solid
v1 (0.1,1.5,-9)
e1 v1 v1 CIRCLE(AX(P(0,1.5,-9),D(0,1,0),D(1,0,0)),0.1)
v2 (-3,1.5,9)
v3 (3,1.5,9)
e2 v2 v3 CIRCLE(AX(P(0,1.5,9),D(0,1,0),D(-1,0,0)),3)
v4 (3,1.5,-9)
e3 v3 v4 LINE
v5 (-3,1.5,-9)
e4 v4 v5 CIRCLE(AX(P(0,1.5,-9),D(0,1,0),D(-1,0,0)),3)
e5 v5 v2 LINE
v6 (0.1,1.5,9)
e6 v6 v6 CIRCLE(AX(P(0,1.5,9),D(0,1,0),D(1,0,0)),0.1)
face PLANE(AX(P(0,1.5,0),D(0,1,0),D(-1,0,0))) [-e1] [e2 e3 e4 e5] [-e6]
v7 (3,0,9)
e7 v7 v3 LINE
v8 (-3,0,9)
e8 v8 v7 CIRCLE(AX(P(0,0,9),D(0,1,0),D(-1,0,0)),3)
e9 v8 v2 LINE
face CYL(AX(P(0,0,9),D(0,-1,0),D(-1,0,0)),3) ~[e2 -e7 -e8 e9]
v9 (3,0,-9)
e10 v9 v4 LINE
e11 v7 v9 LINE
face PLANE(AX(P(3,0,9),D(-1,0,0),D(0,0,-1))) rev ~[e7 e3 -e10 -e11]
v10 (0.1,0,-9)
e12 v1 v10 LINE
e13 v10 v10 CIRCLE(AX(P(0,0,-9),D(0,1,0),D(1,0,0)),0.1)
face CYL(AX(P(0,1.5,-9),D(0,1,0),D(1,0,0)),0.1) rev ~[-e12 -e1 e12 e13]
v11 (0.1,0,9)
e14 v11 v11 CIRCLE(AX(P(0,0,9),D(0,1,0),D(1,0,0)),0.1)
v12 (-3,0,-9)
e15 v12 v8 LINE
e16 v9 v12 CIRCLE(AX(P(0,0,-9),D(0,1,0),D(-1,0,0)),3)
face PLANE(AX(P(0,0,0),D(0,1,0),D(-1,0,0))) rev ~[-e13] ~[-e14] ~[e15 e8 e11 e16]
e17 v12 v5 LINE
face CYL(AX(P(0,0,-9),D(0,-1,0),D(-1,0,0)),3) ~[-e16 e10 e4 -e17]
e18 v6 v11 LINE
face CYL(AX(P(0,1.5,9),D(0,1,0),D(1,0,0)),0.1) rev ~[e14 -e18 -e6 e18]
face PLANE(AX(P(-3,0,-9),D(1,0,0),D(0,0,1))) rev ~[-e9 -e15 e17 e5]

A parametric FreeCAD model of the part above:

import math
import FreeCAD as App
import Part
import Sketcher
from FreeCAD import Vector
Q = App.Units.Quantity

doc = App.newDocument("Part")
body = doc.addObject("PartDesign::Body", "Body")

sketch1 = body.newObject("Sketcher::SketchObject", "Sketch")
sketch1.AttachmentSupport = (doc.getObject("XZ_Plane"), [""])
sketch1.MapMode = "FlatFace"
sketch1.addGeometry(Part.LineSegment(Vector(3, 9, 0), Vector(3, -9, 0)), False)
sketch1.addGeometry(Part.ArcOfCircle(Part.Circle(Vector(0, -9, 0), Vector(0, 0, 1), 3), math.radians(180), math.radians(360)), False)
sketch1.addGeometry(Part.LineSegment(Vector(-3, -9, 0), Vector(-3, 9, 0)), False)
sketch1.addGeometry(Part.ArcOfCircle(Part.Circle(Vector(0, 9, 0), Vector(0, 0, 1), 3), math.radians(0), math.radians(180)), False)
sketch1.addConstraint(Sketcher.Constraint("Tangent", 0, 2, 1, 2))
sketch1.addConstraint(Sketcher.Constraint("Tangent", 1, 1, 2, 1))
sketch1.addConstraint(Sketcher.Constraint("Tangent", 2, 2, 3, 2))
sketch1.addConstraint(Sketcher.Constraint("Tangent", 3, 1, 0, 1))
sketch1.addConstraint(Sketcher.Constraint("Vertical", 0))
sketch1.addConstraint(Sketcher.Constraint("Vertical", 2))
sketch1.addConstraint(Sketcher.Constraint("Symmetric", 1, 3, 3, 3, -1, 1))
sketch1.addConstraint(Sketcher.Constraint("Radius", 1, Q("3 mm")))
sketch1.addConstraint(Sketcher.Constraint("DistanceY", 0, 2, 0, 1, Q("18 mm")))
pad1 = body.newObject("PartDesign::Pad", "Pad")
pad1.Profile = sketch1
pad1.Length = 1.5
pad1.Reversed = True

sketch2 = body.newObject("Sketcher::SketchObject", "Sketch001")
sketch2.AttachmentSupport = (doc.getObject("XZ_Plane"), [""])
sketch2.MapMode = "FlatFace"
sketch2.AttachmentOffset = App.Placement(Vector(0, 0, -1.5), App.Rotation())
sketch2.addGeometry(Part.Circle(Vector(0, -9, 0), Vector(0, 0, 1), 1.5), False)
sketch2.addGeometry(Part.Circle(Vector(0, 9, 0), Vector(0, 0, 1), 1.5), False)
sketch2.addConstraint(Sketcher.Constraint("Equal", 0, 1))
sketch2.addConstraint(Sketcher.Constraint("Symmetric", 0, 3, 1, 3, -1, 1))
sketch2.addConstraint(Sketcher.Constraint("PointOnObject", 0, 3, -2))
sketch2.addConstraint(Sketcher.Constraint("Diameter", 0, Q("3 mm")))
sketch2.addConstraint(Sketcher.Constraint("DistanceY", 0, 3, -1, 1, Q("9 mm")))
pocket1 = body.newObject("PartDesign::Pocket", "Pocket")
pocket1.Profile = sketch2
pocket1.Length = 2
pocket1.Reversed = True

sketch3 = body.newObject("Sketcher::SketchObject", "Sketch002")
sketch3.AttachmentSupport = (doc.getObject("XZ_Plane"), [""])
sketch3.MapMode = "FlatFace"
sketch3.AttachmentOffset = App.Placement(Vector(0, 0, -1.5), App.Rotation())
sketch3.addGeometry(Part.Circle(Vector(0, -9, 0), Vector(0, 0, 1), 1.5), False)
sketch3.addGeometry(Part.Circle(Vector(0, -9, 0), Vector(0, 0, 1), 0.1), False)
sketch3.addGeometry(Part.Circle(Vector(0, 9, 0), Vector(0, 0, 1), 1.5), False)
sketch3.addGeometry(Part.Circle(Vector(0, 9, 0), Vector(0, 0, 1), 0.1), False)
sketch3.addConstraint(Sketcher.Constraint("Coincident", 1, 3, 0, 3))
sketch3.addConstraint(Sketcher.Constraint("Coincident", 3, 3, 2, 3))
sketch3.addConstraint(Sketcher.Constraint("Equal", 0, 2))
sketch3.addConstraint(Sketcher.Constraint("Equal", 1, 3))
sketch3.addConstraint(Sketcher.Constraint("Symmetric", 0, 3, 2, 3, -1, 1))
sketch3.addConstraint(Sketcher.Constraint("PointOnObject", 0, 3, -2))
sketch3.addConstraint(Sketcher.Constraint("Diameter", 1, Q("0.2 mm")))
sketch3.addConstraint(Sketcher.Constraint("Diameter", 0, Q("3 mm")))
sketch3.addConstraint(Sketcher.Constraint("DistanceY", 0, 3, -1, 1, Q("9 mm")))
pad2 = body.newObject("PartDesign::Pad", "Pad001")
pad2.Profile = sketch3
pad2.Length = 1.5

doc.recompute()
